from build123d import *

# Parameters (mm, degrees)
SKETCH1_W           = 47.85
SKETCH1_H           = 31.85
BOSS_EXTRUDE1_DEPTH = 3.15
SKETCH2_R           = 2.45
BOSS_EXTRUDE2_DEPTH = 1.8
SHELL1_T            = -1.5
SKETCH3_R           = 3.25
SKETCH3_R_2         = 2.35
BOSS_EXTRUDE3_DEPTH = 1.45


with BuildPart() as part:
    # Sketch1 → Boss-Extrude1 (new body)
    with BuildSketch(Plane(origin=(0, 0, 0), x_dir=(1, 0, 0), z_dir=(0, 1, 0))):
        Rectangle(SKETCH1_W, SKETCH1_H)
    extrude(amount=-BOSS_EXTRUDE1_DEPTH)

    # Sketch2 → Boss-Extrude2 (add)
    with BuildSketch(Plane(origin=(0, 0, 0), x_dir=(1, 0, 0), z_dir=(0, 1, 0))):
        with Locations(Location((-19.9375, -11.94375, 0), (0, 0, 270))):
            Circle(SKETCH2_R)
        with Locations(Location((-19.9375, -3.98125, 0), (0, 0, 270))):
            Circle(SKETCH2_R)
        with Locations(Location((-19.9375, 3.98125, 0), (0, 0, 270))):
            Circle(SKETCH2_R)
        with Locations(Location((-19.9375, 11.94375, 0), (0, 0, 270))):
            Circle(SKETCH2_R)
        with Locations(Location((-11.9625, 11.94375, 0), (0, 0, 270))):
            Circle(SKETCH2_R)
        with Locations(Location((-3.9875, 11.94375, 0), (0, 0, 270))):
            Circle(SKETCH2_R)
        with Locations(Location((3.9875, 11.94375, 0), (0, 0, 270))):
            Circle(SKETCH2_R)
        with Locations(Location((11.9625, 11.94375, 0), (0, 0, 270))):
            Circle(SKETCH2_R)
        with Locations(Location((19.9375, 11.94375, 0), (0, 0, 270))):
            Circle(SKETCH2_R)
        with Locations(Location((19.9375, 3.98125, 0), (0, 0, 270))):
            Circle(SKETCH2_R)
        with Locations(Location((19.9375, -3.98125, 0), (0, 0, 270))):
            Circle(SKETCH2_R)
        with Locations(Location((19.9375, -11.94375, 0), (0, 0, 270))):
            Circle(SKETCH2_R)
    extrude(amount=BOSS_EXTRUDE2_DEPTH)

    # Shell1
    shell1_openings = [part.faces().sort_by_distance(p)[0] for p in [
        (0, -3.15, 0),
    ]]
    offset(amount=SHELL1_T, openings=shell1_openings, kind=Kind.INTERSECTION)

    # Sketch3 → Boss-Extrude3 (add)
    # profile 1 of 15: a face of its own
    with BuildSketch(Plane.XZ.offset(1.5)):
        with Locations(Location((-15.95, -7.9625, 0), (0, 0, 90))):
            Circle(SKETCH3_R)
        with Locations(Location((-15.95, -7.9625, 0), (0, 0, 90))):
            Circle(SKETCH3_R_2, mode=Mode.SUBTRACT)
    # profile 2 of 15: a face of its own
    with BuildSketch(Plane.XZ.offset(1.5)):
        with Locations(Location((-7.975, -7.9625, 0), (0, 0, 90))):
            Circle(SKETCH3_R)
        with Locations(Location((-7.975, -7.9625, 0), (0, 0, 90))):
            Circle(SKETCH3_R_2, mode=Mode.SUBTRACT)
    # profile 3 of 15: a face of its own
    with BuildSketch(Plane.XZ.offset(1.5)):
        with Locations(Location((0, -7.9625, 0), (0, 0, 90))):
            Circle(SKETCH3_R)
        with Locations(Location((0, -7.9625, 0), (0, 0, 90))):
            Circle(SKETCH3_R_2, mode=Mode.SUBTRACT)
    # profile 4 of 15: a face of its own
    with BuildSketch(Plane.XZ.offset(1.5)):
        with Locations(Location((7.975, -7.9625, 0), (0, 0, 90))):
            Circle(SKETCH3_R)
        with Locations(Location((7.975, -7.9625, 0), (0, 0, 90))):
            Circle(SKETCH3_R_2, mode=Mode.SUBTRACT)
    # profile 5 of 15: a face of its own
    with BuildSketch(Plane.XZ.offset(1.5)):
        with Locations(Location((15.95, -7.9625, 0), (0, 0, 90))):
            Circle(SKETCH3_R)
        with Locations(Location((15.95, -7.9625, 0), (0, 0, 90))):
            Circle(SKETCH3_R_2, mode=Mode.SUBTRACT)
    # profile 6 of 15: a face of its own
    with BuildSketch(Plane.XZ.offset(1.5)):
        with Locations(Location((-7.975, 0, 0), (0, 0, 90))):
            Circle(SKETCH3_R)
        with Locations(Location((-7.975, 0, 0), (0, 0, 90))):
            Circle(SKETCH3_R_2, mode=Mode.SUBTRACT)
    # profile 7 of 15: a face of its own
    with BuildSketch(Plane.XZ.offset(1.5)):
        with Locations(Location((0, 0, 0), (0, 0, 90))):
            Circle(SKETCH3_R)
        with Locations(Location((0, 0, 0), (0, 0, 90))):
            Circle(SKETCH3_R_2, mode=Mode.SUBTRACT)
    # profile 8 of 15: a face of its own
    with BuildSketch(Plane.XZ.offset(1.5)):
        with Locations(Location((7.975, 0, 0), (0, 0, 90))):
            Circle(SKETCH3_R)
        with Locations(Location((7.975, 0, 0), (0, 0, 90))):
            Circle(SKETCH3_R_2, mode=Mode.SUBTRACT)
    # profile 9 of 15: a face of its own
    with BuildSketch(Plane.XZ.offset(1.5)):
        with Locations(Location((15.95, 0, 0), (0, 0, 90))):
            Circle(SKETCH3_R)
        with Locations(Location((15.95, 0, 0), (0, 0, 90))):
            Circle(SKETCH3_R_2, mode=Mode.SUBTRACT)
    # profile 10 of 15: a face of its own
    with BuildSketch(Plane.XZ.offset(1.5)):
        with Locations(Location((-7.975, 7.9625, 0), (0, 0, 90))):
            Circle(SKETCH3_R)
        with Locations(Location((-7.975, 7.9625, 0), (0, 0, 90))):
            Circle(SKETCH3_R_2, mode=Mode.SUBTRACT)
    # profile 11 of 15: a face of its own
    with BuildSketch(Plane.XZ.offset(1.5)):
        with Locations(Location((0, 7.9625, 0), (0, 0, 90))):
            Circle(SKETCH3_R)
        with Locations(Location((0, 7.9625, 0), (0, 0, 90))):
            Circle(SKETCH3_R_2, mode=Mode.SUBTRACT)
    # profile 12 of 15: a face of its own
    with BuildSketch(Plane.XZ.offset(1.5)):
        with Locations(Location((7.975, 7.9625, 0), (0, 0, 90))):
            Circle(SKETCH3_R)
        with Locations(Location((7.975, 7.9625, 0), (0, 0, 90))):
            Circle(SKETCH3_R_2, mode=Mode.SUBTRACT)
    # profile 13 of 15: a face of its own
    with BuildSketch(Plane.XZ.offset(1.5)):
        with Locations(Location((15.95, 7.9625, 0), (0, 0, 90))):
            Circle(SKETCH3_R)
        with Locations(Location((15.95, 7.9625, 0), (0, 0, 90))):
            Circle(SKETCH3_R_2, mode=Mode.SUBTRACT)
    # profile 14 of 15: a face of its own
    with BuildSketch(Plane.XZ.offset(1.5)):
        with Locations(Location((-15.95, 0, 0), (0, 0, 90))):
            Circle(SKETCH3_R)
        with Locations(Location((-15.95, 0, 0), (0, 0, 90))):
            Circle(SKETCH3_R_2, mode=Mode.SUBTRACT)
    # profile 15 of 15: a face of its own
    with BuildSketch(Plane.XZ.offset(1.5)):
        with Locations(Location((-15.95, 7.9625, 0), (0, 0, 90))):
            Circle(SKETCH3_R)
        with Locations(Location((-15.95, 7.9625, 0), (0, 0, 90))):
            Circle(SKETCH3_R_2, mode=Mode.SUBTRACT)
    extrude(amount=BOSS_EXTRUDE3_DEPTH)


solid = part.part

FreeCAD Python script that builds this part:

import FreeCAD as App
import Part
import Sketcher
from FreeCAD import Vector


def faces_at(feature, points):
    """Names of the faces that lie closest to the given points."""
    faces = feature.Shape.Faces
    near = lambda p: min(range(len(faces)), key=lambda i: faces[i].distToShape(Part.Vertex(*p))[0])
    return sorted({f"Face{near(p) + 1}" for p in points})


def add_polygon(sketch, points):
    """Adds a closed chain of lines whose ends are joined by coincident constraints."""
    first, n = sketch.GeometryCount, len(points)
    for a, b in zip(points, points[1:] + points[:1]):
        sketch.addGeometry(Part.LineSegment(App.Vector(*a, 0), App.Vector(*b, 0)), False)
    for i in range(n):
        sketch.addConstraint(Sketcher.Constraint("Coincident", first + i, 2, first + (i + 1) % n, 1))

doc = App.newDocument("Part")
body = doc.addObject("PartDesign::Body", "Body")

# Sketch on XZ plane
sketch1 = body.newObject("Sketcher::SketchObject", "Sketch")
sketch1.AttachmentSupport = (doc.getObject("XZ_Plane"), [""])
sketch1.MapMode = "FlatFace"
add_polygon(sketch1, [(-23.925, -15.925), (-23.925, 15.925), (23.925, 15.925), (23.925, -15.925)])  # lines 0-3
sketch1.addConstraint([
    Sketcher.Constraint("Vertical", 0),
    Sketcher.Constraint("Horizontal", 1),
    Sketcher.Constraint("Vertical", 2),
    Sketcher.Constraint("Horizontal", 3),
    Sketcher.Constraint("Symmetric", 0, 2, 2, 2, -1, 1),
    Sketcher.Constraint("DistanceX", 1, 1, 1, 2, 47.85),
    Sketcher.Constraint("DistanceY", 0, 1, 0, 2, 31.85),
])
pad1 = body.newObject("PartDesign::Pad", "Pad")
pad1.Profile = sketch1
pad1.Length = 3.15

# Sketch on XZ plane
sketch2 = body.newObject("Sketcher::SketchObject", "Sketch001")
sketch2.AttachmentSupport = (doc.getObject("XZ_Plane"), [""])
sketch2.MapMode = "FlatFace"
sketch2.addGeometry([
    Part.Circle(Vector(-19.9375, 11.94375, 0), Vector(0, 0, 1), 2.45),  # 0
    Part.Circle(Vector(-19.9375, 3.98125, 0), Vector(0, 0, 1), 2.45),  # 1
    Part.Circle(Vector(-19.9375, -3.98125, 0), Vector(0, 0, 1), 2.45),  # 2
    Part.Circle(Vector(-19.9375, -11.94375, 0), Vector(0, 0, 1), 2.45),  # 3
    Part.Circle(Vector(-11.9625, -11.94375, 0), Vector(0, 0, 1), 2.45),  # 4
    Part.Circle(Vector(-3.9875, -11.94375, 0), Vector(0, 0, 1), 2.45),  # 5
    Part.Circle(Vector(3.9875, -11.94375, 0), Vector(0, 0, 1), 2.45),  # 6
    Part.Circle(Vector(11.9625, -11.94375, 0), Vector(0, 0, 1), 2.45),  # 7
    Part.Circle(Vector(19.9375, -11.94375, 0), Vector(0, 0, 1), 2.45),  # 8
    Part.Circle(Vector(19.9375, -3.98125, 0), Vector(0, 0, 1), 2.45),  # 9
    Part.Circle(Vector(19.9375, 3.98125, 0), Vector(0, 0, 1), 2.45),  # 10
    Part.Circle(Vector(19.9375, 11.94375, 0), Vector(0, 0, 1), 2.45),  # 11
], False)
sketch2.addConstraint([
    Sketcher.Constraint("Equal", 0, 1),
    Sketcher.Constraint("Equal", 1, 2),
    Sketcher.Constraint("Equal", 2, 3),
    Sketcher.Constraint("Equal", 3, 4),
    Sketcher.Constraint("Equal", 4, 5),
    Sketcher.Constraint("Equal", 5, 6),
    Sketcher.Constraint("Equal", 6, 7),
    Sketcher.Constraint("Equal", 7, 8),
    Sketcher.Constraint("Equal", 8, 9),
    Sketcher.Constraint("Equal", 9, 10),
    Sketcher.Constraint("Equal", 10, 11),
    Sketcher.Constraint("Symmetric", 0, 3, 8, 3, -1, 1),
    Sketcher.Constraint("Symmetric", 1, 3, 9, 3, -1, 1),
    Sketcher.Constraint("Symmetric", 2, 3, 10, 3, -1, 1),
    Sketcher.Constraint("Symmetric", 3, 3, 11, 3, -1, 1),
    Sketcher.Constraint("Symmetric", 5, 3, 6, 3, -2),
    Sketcher.Constraint("Symmetric", 4, 3, 7, 3, -2),
    Sketcher.Constraint("Symmetric", 3, 3, 8, 3, -2),
    Sketcher.Constraint("Symmetric", 2, 3, 9, 3, -2),
    Sketcher.Constraint("Horizontal", 3, 3, 4, 3),
    Sketcher.Constraint("Horizontal", 4, 3, 5, 3),
    Sketcher.Constraint("Vertical", 0, 3, 1, 3),
    Sketcher.Constraint("Diameter", 0, 4.9),
    Sketcher.Constraint("DistanceX", 3, 3, 7, 3, 31.9),
    Sketcher.Constraint("DistanceX", 3, 3, 5, 3, 15.95),
    Sketcher.Constraint("DistanceY", 2, 3, 0, 3, 15.925),
    Sketcher.Constraint("DistanceX", 3, 3, 4, 3, 7.975),
    Sketcher.Constraint("DistanceY", 1, 3, 0, 3, 7.9625),
])
pad2 = body.newObject("PartDesign::Pad", "Pad001")
pad2.Profile = sketch2
pad2.Length = 1.8
pad2.Reversed = True
doc.recompute()

thickness = body.newObject("PartDesign::Thickness", "Thickness")
thickness.Base = (pad2, faces_at(pad2, [(0, -3.15, 0)]))
thickness.Value = 1.5
thickness.Reversed = True
thickness.Join = "Intersection"

# Sketch on XZ plane
sketch3 = body.newObject("Sketcher::SketchObject", "Sketch002")
sketch3.AttachmentSupport = (doc.getObject("XZ_Plane"), [""])
sketch3.MapMode = "FlatFace"
sketch3.AttachmentOffset = App.Placement(Vector(0, 0, 1.5), App.Rotation())
sketch3.addGeometry([
    Part.Circle(Vector(-15.95, -7.9625, 0), Vector(0, 0, 1), 3.25),  # 0
    Part.Circle(Vector(-15.95, -7.9625, 0), Vector(0, 0, 1), 2.35),  # 1
    Part.Circle(Vector(-7.975, -7.9625, 0), Vector(0, 0, 1), 3.25),  # 2
    Part.Circle(Vector(-7.975, -7.9625, 0), Vector(0, 0, 1), 2.35),  # 3
    Part.Circle(Vector(0, -7.9625, 0), Vector(0, 0, 1), 3.25),  # 4
    Part.Circle(Vector(0, -7.9625, 0), Vector(0, 0, 1), 2.35),  # 5
    Part.Circle(Vector(7.975, -7.9625, 0), Vector(0, 0, 1), 3.25),  # 6
    Part.Circle(Vector(7.975, -7.9625, 0), Vector(0, 0, 1), 2.35),  # 7
    Part.Circle(Vector(15.95, -7.9625, 0), Vector(0, 0, 1), 3.25),  # 8
    Part.Circle(Vector(15.95, -7.9625, 0), Vector(0, 0, 1), 2.35),  # 9
    Part.Circle(Vector(-7.975, 0, 0), Vector(0, 0, 1), 3.25),  # 10
    Part.Circle(Vector(-7.975, 0, 0), Vector(0, 0, 1), 2.35),  # 11
    Part.Circle(Vector(0, 0, 0), Vector(0, 0, 1), 3.25),  # 12
    Part.Circle(Vector(0, 0, 0), Vector(0, 0, 1), 2.35),  # 13
    Part.Circle(Vector(7.975, 0, 0), Vector(0, 0, 1), 3.25),  # 14
    Part.Circle(Vector(7.975, 0, 0), Vector(0, 0, 1), 2.35),  # 15
    Part.Circle(Vector(15.95, 0, 0), Vector(0, 0, 1), 3.25),  # 16
    Part.Circle(Vector(15.95, 0, 0), Vector(0, 0, 1), 2.35),  # 17
    Part.Circle(Vector(-7.975, 7.9625, 0), Vector(0, 0, 1), 3.25),  # 18
    Part.Circle(Vector(-7.975, 7.9625, 0), Vector(0, 0, 1), 2.35),  # 19
    Part.Circle(Vector(0, 7.9625, 0), Vector(0, 0, 1), 3.25),  # 20
    Part.Circle(Vector(0, 7.9625, 0), Vector(0, 0, 1), 2.35),  # 21
    Part.Circle(Vector(7.975, 7.9625, 0), Vector(0, 0, 1), 3.25),  # 22
    Part.Circle(Vector(7.975, 7.9625, 0), Vector(0, 0, 1), 2.35),  # 23
    Part.Circle(Vector(15.95, 7.9625, 0), Vector(0, 0, 1), 3.25),  # 24
    Part.Circle(Vector(15.95, 7.9625, 0), Vector(0, 0, 1), 2.35),  # 25
    Part.Circle(Vector(-15.95, 0, 0), Vector(0, 0, 1), 3.25),  # 26
    Part.Circle(Vector(-15.95, 0, 0), Vector(0, 0, 1), 2.35),  # 27
    Part.Circle(Vector(-15.95, 7.9625, 0), Vector(0, 0, 1), 3.25),  # 28
    Part.Circle(Vector(-15.95, 7.9625, 0), Vector(0, 0, 1), 2.35),  # 29
], False)
sketch3.addConstraint([
    Sketcher.Constraint("Coincident", 12, 3, -1, 1),
    Sketcher.Constraint("Coincident", 13, 3, -1, 1),
    Sketcher.Constraint("Coincident", 1, 3, 0, 3),
    Sketcher.Constraint("Coincident", 3, 3, 2, 3),
    Sketcher.Constraint("Coincident", 5, 3, 4, 3),
    Sketcher.Constraint("Coincident", 7, 3, 6, 3),
    Sketcher.Constraint("Coincident", 9, 3, 8, 3),
    Sketcher.Constraint("Coincident", 11, 3, 10, 3),
    Sketcher.Constraint("Coincident", 15, 3, 14, 3),
    Sketcher.Constraint("Coincident", 17, 3, 16, 3),
    Sketcher.Constraint("Coincident", 19, 3, 18, 3),
    Sketcher.Constraint("Coincident", 21, 3, 20, 3),
    Sketcher.Constraint("Coincident", 23, 3, 22, 3),
    Sketcher.Constraint("Coincident", 25, 3, 24, 3),
    Sketcher.Constraint("Coincident", 27, 3, 26, 3),
    Sketcher.Constraint("Coincident", 29, 3, 28, 3),
    Sketcher.Constraint("Equal", 0, 2),
    Sketcher.Constraint("Equal", 1, 3),
    Sketcher.Constraint("Equal", 2, 4),
    Sketcher.Constraint("Equal", 3, 5),
    Sketcher.Constraint("Equal", 4, 6),
    Sketcher.Constraint("Equal", 5, 7),
    Sketcher.Constraint("Equal", 6, 8),
    Sketcher.Constraint("Equal", 7, 9),
    Sketcher.Constraint("Equal", 8, 10),
    Sketcher.Constraint("Equal", 9, 11),
    Sketcher.Constraint("Equal", 10, 12),
    Sketcher.Constraint("Equal", 11, 13),
    Sketcher.Constraint("Equal", 12, 14),
    Sketcher.Constraint("Equal", 13, 15),
    Sketcher.Constraint("Equal", 14, 16),
    Sketcher.Constraint("Equal", 15, 17),
    Sketcher.Constraint("Equal", 16, 18),
    Sketcher.Constraint("Equal", 17, 19),
    Sketcher.Constraint("Equal", 18, 20),
    Sketcher.Constraint("Equal", 19, 21),
    Sketcher.Constraint("Equal", 20, 22),
    Sketcher.Constraint("Equal", 21, 23),
    Sketcher.Constraint("Equal", 22, 24),
    Sketcher.Constraint("Equal", 23, 25),
    Sketcher.Constraint("Equal", 24, 26),
    Sketcher.Constraint("Equal", 25, 27),
    Sketcher.Constraint("Equal", 26, 28),
    Sketcher.Constraint("Equal", 27, 29),
    Sketcher.Constraint("Symmetric", 10, 3, 14, 3, -1, 1),
    Sketcher.Constraint("Symmetric", 6, 3, 18, 3, -1, 1),
    Sketcher.Constraint("Symmetric", 4, 3, 20, 3, -1, 1),
    Sketcher.Constraint("Symmetric", 2, 3, 22, 3, -1, 1),
    Sketcher.Constraint("Symmetric", 0, 3, 24, 3, -1, 1),
    Sketcher.Constraint("Symmetric", 16, 3, 26, 3, -1, 1),
    Sketcher.Constraint("Symmetric", 8, 3, 28, 3, -1, 1),
    Sketcher.Constraint("Symmetric", 2, 3, 6, 3, -2),
    Sketcher.Constraint("Symmetric", 0, 3, 8, 3, -2),
    Sketcher.Constraint("PointOnObject", 4, 3, -2),
    Sketcher.Constraint("PointOnObject", 10, 3, -1),
    Sketcher.Constraint("PointOnObject", 16, 3, -1),
    Sketcher.Constraint("Horizontal", 1, 3, 2, 3),
    Sketcher.Constraint("Horizontal", 3, 3, 4, 3),
    Sketcher.Constraint("Vertical", 3, 3, 10, 3),
    Sketcher.Constraint("Vertical", 9, 3, 16, 3),
    Sketcher.Constraint("Diameter", 0, 6.5),
    Sketcher.Constraint("Diameter", 1, 4.7),
    Sketcher.Constraint("DistanceX", 0, 3, -1, 1, 15.95),
    Sketcher.Constraint("DistanceX", 2, 3, 6, 3, 15.95),
    Sketcher.Constraint("DistanceY", 2, 3, 18, 3, 15.925),
])
pad3 = body.newObject("PartDesign::Pad", "Pad002")
pad3.Profile = sketch3
pad3.Length = 1.45

doc.recompute()
